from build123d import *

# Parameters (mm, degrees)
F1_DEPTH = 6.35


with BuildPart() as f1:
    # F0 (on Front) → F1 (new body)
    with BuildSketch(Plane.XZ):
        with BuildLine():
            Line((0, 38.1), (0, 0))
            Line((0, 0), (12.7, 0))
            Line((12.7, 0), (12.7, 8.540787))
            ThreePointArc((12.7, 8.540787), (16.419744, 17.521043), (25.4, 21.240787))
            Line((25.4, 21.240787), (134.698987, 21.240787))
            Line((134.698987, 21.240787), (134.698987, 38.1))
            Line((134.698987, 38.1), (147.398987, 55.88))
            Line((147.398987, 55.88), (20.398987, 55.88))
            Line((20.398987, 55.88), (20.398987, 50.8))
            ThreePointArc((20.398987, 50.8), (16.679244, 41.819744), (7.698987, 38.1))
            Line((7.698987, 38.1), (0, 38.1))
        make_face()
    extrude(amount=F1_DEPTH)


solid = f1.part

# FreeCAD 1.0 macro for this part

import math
import FreeCAD as App
import Part
import Sketcher
Q = App.Units.Quantity

doc = App.newDocument("Part")
body = doc.addObject("PartDesign::Body", "Body")

# Sketch on XZ plane
sketch1 = doc.addObject("Sketcher::SketchObject", "Sketch")
body.addObject(sketch1)
sketch1.AttachmentSupport = (doc.XZ_Plane, [""])
sketch1.MapMode = "FlatFace"
sketch1.addGeometry(Part.LineSegment(App.Vector(0, 38, 0), App.Vector(0, 0, 0)), False)
sketch1.addGeometry(Part.LineSegment(App.Vector(0, 0, 0), App.Vector(13, 0, 0)), False)
sketch1.addGeometry(Part.LineSegment(App.Vector(13, 0, 0), App.Vector(13, 9, 0)), False)
sketch1.addGeometry(Part.ArcOfCircle(Part.Circle(App.Vector(25, 9, 0), App.Vector(0, 0, 1), 13), math.radians(90), math.radians(180)), False)
sketch1.addGeometry(Part.LineSegment(App.Vector(25, 21, 0), App.Vector(135, 21, 0)), False)
sketch1.addGeometry(Part.LineSegment(App.Vector(135, 21, 0), App.Vector(135, 38, 0)), False)
sketch1.addGeometry(Part.LineSegment(App.Vector(135, 38, 0), App.Vector(147, 56, 0)), False)
sketch1.addGeometry(Part.LineSegment(App.Vector(147, 56, 0), App.Vector(20, 56, 0)), False)
sketch1.addGeometry(Part.LineSegment(App.Vector(20, 56, 0), App.Vector(20, 51, 0)), False)
sketch1.addGeometry(Part.ArcOfCircle(Part.Circle(App.Vector(8, 51, 0), App.Vector(0, 0, 1), 13), math.radians(-90), math.radians(0)), False)
sketch1.addGeometry(Part.LineSegment(App.Vector(8, 38, 0), App.Vector(0, 38, 0)), False)
sketch1.addConstraint(Sketcher.Constraint("Coincident", 0, 2, 1, 1))
sketch1.addConstraint(Sketcher.Constraint("Coincident", 1, 2, 2, 1))
sketch1.addConstraint(Sketcher.Constraint("Tangent", 2, 2, 3, 2))
sketch1.addConstraint(Sketcher.Constraint("Tangent", 3, 1, 4, 1))
sketch1.addConstraint(Sketcher.Constraint("Coincident", 4, 2, 5, 1))
sketch1.addConstraint(Sketcher.Constraint("Coincident", 5, 2, 6, 1))
sketch1.addConstraint(Sketcher.Constraint("Coincident", 6, 2, 7, 1))
sketch1.addConstraint(Sketcher.Constraint("Coincident", 7, 2, 8, 1))
sketch1.addConstraint(Sketcher.Constraint("Tangent", 8, 2, 9, 2))
sketch1.addConstraint(Sketcher.Constraint("Tangent", 9, 1, 10, 1))
sketch1.addConstraint(Sketcher.Constraint("Coincident", 10, 2, 0, 1))
sketch1.addConstraint(Sketcher.Constraint("Vertical", 0))
sketch1.addConstraint(Sketcher.Constraint("Horizontal", 1))
sketch1.addConstraint(Sketcher.Constraint("Vertical", 2))
sketch1.addConstraint(Sketcher.Constraint("Horizontal", 4))
sketch1.addConstraint(Sketcher.Constraint("Vertical", 5))
sketch1.addConstraint(Sketcher.Constraint("Horizontal", 7))
sketch1.addConstraint(Sketcher.Constraint("Vertical", 8))
sketch1.addConstraint(Sketcher.Constraint("Horizontal", 10))
sketch1.addConstraint(Sketcher.Constraint("Coincident", 0, 2, -1, 1))
sketch1.addConstraint(Sketcher.Constraint("Equal", 3, 9))
sketch1.addConstraint(Sketcher.Constraint("Horizontal", 5, 2, 9, 1))
sketch1.addConstraint(Sketcher.Constraint("Radius", 3, Q("0.5 in")))
sketch1.addConstraint(Sketcher.Constraint("DistanceX", 7, 2, 7, 1, Q("5 in")))
sketch1.addConstraint(Sketcher.Constraint("DistanceX", 1, 1, 1, 2, Q("0.5 in")))
sketch1.addConstraint(Sketcher.Constraint("DistanceY", 0, 2, 0, 1, Q("1.5 in")))
sketch1.addConstraint(Sketcher.Constraint("DistanceY", 8, 2, 8, 1, Q("0.2 in")))
sketch1.addConstraint(Sketcher.Constraint("DistanceX", 9, 3, 4, 2, Q("4.9999999 in")))
sketch1.addConstraint(Sketcher.Constraint("DistanceX", 4, 1, 4, 2, Q("109.298987 mm")))
sketch1.addConstraint(Sketcher.Constraint("DistanceY", 2, 1, 2, 2, Q("8.540787 mm")))
pad1 = doc.addObject("PartDesign::Pad", "Pad")
body.addObject(pad1)
pad1.Profile = sketch1
pad1.Length = Q("0.25 in")

doc.recompute()
